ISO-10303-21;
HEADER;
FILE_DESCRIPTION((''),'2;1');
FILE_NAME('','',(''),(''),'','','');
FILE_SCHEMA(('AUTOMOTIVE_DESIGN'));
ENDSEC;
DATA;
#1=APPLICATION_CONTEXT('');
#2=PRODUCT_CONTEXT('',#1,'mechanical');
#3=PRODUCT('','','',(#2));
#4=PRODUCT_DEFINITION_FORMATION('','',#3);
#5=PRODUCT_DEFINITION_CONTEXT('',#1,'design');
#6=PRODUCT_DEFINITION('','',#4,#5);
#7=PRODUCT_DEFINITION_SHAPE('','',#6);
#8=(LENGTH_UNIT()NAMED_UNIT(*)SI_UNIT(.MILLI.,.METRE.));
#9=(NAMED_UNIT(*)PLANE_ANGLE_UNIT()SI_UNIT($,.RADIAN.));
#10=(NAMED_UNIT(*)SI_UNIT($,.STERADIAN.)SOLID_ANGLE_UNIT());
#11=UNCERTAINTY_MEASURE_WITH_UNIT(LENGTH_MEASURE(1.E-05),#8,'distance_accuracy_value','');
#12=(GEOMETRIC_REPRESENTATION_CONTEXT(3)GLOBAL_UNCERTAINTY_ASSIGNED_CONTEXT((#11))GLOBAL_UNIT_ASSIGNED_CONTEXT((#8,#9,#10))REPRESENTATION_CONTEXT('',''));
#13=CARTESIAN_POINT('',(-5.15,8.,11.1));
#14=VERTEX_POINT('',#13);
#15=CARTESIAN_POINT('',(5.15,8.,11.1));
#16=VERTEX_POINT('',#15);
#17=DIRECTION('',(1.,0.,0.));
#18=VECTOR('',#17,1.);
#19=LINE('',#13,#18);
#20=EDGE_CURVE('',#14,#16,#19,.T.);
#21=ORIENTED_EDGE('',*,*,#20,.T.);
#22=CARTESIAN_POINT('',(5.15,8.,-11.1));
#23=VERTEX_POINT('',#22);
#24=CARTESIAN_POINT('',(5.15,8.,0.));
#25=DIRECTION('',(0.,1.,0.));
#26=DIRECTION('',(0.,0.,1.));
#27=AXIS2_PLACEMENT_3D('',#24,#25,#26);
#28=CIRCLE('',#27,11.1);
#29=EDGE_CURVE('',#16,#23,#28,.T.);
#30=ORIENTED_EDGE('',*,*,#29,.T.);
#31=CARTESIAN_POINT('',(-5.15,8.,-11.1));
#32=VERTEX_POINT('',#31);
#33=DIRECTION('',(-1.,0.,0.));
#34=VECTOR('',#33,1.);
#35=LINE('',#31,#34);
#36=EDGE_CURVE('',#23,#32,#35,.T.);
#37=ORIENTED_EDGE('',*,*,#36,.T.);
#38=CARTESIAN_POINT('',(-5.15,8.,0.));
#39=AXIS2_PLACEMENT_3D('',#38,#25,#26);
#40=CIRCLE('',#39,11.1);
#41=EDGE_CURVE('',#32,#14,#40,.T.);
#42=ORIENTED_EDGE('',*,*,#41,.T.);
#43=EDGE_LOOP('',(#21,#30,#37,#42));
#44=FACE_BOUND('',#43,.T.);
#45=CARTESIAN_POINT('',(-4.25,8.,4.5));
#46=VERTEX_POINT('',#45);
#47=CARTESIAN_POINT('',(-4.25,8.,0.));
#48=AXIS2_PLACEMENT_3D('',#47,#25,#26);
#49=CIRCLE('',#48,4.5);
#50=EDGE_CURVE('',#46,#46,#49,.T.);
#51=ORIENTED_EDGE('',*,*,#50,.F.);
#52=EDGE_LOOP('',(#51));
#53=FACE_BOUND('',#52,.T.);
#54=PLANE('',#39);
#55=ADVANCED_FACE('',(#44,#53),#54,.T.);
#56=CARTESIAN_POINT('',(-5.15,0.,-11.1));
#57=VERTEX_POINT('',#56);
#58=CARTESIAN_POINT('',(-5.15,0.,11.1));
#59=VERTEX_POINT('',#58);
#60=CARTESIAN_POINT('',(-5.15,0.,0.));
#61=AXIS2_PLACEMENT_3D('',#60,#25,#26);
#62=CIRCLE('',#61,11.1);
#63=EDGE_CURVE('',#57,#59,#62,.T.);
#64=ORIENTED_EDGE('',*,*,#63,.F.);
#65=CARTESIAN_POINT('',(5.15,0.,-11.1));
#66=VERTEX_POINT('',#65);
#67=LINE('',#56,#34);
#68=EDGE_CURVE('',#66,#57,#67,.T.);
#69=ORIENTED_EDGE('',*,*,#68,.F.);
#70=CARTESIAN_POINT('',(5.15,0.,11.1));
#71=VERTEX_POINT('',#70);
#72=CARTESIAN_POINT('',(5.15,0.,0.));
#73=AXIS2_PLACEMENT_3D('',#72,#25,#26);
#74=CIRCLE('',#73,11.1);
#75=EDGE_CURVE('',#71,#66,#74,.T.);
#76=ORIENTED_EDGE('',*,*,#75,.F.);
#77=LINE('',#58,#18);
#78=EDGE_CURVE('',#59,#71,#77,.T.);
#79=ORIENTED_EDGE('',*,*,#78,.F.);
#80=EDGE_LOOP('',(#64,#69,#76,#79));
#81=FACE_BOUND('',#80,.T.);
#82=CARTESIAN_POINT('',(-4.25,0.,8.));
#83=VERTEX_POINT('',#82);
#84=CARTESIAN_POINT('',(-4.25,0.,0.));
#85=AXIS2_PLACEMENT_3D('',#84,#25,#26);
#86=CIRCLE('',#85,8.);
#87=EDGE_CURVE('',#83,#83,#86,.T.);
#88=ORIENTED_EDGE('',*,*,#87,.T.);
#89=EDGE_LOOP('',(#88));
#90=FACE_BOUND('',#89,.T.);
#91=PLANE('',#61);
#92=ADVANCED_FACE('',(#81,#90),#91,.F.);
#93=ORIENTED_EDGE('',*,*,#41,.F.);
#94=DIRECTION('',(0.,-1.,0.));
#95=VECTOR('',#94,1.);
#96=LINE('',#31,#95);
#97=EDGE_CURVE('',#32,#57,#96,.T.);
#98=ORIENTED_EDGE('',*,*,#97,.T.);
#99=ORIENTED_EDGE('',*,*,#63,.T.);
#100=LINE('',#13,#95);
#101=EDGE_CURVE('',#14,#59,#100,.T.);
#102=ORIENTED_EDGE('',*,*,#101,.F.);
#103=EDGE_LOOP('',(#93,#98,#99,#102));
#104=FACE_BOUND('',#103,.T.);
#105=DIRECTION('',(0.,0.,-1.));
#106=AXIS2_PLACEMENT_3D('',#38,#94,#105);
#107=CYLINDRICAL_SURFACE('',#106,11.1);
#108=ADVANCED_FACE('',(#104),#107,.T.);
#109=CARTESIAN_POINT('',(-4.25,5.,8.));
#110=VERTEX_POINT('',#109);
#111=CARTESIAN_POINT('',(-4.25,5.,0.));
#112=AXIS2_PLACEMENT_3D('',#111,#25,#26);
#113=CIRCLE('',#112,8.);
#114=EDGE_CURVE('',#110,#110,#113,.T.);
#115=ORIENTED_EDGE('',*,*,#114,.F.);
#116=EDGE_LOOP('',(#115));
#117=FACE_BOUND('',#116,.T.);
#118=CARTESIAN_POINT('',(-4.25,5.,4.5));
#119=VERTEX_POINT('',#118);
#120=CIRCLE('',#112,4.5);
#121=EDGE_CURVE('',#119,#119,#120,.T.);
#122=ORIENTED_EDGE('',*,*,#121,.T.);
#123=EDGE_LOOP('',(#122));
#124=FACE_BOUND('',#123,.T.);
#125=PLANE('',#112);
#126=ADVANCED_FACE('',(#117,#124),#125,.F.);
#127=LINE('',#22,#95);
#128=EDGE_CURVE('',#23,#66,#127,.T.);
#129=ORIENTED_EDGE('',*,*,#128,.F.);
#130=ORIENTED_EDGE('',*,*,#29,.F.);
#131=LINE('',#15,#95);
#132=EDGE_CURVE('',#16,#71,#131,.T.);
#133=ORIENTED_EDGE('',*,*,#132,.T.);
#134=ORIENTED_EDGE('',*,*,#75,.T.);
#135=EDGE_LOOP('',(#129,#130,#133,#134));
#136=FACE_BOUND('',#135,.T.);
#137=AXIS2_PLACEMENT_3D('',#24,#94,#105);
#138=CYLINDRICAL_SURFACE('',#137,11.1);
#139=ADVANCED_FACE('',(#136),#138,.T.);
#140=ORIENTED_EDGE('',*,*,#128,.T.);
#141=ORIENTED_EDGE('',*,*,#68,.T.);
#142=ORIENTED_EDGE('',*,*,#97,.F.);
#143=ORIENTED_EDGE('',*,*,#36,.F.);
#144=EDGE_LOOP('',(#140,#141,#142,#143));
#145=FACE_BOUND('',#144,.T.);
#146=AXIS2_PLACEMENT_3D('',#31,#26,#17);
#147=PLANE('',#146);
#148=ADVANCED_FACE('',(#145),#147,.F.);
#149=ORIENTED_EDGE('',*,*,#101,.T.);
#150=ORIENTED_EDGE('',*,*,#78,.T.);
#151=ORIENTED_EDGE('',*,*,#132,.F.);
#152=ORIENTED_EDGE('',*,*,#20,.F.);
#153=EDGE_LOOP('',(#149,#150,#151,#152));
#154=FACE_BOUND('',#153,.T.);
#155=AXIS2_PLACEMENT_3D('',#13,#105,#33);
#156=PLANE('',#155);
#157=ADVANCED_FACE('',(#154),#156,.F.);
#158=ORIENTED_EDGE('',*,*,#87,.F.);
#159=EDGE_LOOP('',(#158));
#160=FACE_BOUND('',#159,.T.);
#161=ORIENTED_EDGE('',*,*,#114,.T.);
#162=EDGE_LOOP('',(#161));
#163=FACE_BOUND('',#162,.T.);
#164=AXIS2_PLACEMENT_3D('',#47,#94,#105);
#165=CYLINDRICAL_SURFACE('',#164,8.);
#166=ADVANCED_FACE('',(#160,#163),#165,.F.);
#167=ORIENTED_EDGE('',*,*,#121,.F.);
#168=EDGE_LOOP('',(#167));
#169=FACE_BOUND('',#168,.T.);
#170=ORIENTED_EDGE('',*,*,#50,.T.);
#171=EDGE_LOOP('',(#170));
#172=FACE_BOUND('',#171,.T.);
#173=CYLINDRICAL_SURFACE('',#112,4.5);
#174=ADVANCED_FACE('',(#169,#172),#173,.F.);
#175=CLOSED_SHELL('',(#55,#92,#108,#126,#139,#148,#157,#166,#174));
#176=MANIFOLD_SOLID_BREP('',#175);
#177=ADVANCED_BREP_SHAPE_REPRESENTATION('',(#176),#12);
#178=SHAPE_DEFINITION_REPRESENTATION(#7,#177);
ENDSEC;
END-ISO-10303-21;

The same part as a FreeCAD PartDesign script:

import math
import FreeCAD as App
import Part
import Sketcher

doc = App.newDocument("Part")
params = doc.addObject("Spreadsheet::Sheet", "Params")
for row, (alias, value) in enumerate([
    ("sketch1_diameter", "16 mm"),
    ("sketch1_radius", "11.1 mm"),
    ("sketch1_width", "10.3 mm"),
    ("pad1_length", "8 mm"),
    ("sketch2_diameter", "9 mm"),
    ("pad2_length", "3 mm"),
], start=1):
    params.set(f"A{row}", alias)
    params.set(f"B{row}", "=" + value)
    params.setAlias(f"B{row}", alias)

body = doc.addObject("PartDesign::Body", "Body")

# Sketch on XZ plane
sketch1 = body.newObject("Sketcher::SketchObject", "Sketch")
sketch1.AttachmentSupport = (doc.getObject("XZ_Plane"), [""])
sketch1.MapMode = "FlatFace"
sketch1.addGeometry([
    Part.LineSegment(App.Vector(5, -11, 0), App.Vector(-5, -11, 0)),  # 0
    Part.ArcOfCircle(Part.Circle(App.Vector(-5, 0, 0), App.Vector(0, 0, 1), 11), math.radians(90), math.radians(270)),  # 1
    Part.LineSegment(App.Vector(-5, 11, 0), App.Vector(5, 11, 0)),  # 2
    Part.ArcOfCircle(Part.Circle(App.Vector(5, 0, 0), App.Vector(0, 0, 1), 11), math.radians(-90), math.radians(90)),  # 3
    Part.Circle(App.Vector(-4, 0, 0), App.Vector(0, 0, 1), 8),  # 4
], False)
sketch1.addConstraint([
    Sketcher.Constraint("Tangent", 0, 2, 1, 2),
    Sketcher.Constraint("Tangent", 1, 1, 2, 1),
    Sketcher.Constraint("Tangent", 2, 2, 3, 2),
    Sketcher.Constraint("Tangent", 3, 1, 0, 1),
    Sketcher.Constraint("Horizontal", 0),
    Sketcher.Constraint("Horizontal", 2),
    Sketcher.Constraint("Symmetric", 1, 3, 3, 3, -1, 1),
    Sketcher.Constraint("PointOnObject", 4, 3, -1),
    Sketcher.Constraint("Diameter", 4, 16.0),
    Sketcher.Constraint("Radius", 1, 11.1),
    Sketcher.Constraint("DistanceX", 0, 2, 0, 1, 10.3),
    Sketcher.Constraint("DistanceX", 1, 3, 4, 3, 0.9),
])
sketch1.setExpression("Constraints[8]", "Params.sketch1_diameter")
sketch1.setExpression("Constraints[9]", "Params.sketch1_radius")
sketch1.setExpression("Constraints[10]", "Params.sketch1_width")
pad1 = body.newObject("PartDesign::Pad", "Pad")
pad1.Profile = sketch1
pad1.setExpression("Length", "Params.pad1_length")
pad1.Reversed = True

# Sketch on XZ plane
sketch2 = body.newObject("Sketcher::SketchObject", "Sketch001")
sketch2.AttachmentSupport = (doc.getObject("XZ_Plane"), [""])
sketch2.MapMode = "FlatFace"
sketch2.AttachmentOffset = App.Placement(App.Vector(0, 0, -8), App.Rotation())
sketch2.addGeometry([
    Part.Circle(App.Vector(-4.2, 0, 0), App.Vector(0, 0, 1), 8.2),
    Part.Circle(App.Vector(-4.2, 0, 0), App.Vector(0, 0, 1), 4.5),
], False)
sketch2.addConstraint([
    Sketcher.Constraint("Coincident", 1, 3, 0, 3),
    Sketcher.Constraint("PointOnObject", 0, 3, -1),
    Sketcher.Constraint("Diameter", 1, 9.0),
    Sketcher.Constraint("DistanceX", 0, 3, -1, 1, 4.25),
    Sketcher.Constraint("Diameter", 0, 16.429403),
])
sketch2.setExpression("Constraints[2]", "Params.sketch2_diameter")
pad2 = body.newObject("PartDesign::Pad", "Pad001")
pad2.Profile = sketch2
pad2.setExpression("Length", "Params.pad2_length")

doc.recompute()
